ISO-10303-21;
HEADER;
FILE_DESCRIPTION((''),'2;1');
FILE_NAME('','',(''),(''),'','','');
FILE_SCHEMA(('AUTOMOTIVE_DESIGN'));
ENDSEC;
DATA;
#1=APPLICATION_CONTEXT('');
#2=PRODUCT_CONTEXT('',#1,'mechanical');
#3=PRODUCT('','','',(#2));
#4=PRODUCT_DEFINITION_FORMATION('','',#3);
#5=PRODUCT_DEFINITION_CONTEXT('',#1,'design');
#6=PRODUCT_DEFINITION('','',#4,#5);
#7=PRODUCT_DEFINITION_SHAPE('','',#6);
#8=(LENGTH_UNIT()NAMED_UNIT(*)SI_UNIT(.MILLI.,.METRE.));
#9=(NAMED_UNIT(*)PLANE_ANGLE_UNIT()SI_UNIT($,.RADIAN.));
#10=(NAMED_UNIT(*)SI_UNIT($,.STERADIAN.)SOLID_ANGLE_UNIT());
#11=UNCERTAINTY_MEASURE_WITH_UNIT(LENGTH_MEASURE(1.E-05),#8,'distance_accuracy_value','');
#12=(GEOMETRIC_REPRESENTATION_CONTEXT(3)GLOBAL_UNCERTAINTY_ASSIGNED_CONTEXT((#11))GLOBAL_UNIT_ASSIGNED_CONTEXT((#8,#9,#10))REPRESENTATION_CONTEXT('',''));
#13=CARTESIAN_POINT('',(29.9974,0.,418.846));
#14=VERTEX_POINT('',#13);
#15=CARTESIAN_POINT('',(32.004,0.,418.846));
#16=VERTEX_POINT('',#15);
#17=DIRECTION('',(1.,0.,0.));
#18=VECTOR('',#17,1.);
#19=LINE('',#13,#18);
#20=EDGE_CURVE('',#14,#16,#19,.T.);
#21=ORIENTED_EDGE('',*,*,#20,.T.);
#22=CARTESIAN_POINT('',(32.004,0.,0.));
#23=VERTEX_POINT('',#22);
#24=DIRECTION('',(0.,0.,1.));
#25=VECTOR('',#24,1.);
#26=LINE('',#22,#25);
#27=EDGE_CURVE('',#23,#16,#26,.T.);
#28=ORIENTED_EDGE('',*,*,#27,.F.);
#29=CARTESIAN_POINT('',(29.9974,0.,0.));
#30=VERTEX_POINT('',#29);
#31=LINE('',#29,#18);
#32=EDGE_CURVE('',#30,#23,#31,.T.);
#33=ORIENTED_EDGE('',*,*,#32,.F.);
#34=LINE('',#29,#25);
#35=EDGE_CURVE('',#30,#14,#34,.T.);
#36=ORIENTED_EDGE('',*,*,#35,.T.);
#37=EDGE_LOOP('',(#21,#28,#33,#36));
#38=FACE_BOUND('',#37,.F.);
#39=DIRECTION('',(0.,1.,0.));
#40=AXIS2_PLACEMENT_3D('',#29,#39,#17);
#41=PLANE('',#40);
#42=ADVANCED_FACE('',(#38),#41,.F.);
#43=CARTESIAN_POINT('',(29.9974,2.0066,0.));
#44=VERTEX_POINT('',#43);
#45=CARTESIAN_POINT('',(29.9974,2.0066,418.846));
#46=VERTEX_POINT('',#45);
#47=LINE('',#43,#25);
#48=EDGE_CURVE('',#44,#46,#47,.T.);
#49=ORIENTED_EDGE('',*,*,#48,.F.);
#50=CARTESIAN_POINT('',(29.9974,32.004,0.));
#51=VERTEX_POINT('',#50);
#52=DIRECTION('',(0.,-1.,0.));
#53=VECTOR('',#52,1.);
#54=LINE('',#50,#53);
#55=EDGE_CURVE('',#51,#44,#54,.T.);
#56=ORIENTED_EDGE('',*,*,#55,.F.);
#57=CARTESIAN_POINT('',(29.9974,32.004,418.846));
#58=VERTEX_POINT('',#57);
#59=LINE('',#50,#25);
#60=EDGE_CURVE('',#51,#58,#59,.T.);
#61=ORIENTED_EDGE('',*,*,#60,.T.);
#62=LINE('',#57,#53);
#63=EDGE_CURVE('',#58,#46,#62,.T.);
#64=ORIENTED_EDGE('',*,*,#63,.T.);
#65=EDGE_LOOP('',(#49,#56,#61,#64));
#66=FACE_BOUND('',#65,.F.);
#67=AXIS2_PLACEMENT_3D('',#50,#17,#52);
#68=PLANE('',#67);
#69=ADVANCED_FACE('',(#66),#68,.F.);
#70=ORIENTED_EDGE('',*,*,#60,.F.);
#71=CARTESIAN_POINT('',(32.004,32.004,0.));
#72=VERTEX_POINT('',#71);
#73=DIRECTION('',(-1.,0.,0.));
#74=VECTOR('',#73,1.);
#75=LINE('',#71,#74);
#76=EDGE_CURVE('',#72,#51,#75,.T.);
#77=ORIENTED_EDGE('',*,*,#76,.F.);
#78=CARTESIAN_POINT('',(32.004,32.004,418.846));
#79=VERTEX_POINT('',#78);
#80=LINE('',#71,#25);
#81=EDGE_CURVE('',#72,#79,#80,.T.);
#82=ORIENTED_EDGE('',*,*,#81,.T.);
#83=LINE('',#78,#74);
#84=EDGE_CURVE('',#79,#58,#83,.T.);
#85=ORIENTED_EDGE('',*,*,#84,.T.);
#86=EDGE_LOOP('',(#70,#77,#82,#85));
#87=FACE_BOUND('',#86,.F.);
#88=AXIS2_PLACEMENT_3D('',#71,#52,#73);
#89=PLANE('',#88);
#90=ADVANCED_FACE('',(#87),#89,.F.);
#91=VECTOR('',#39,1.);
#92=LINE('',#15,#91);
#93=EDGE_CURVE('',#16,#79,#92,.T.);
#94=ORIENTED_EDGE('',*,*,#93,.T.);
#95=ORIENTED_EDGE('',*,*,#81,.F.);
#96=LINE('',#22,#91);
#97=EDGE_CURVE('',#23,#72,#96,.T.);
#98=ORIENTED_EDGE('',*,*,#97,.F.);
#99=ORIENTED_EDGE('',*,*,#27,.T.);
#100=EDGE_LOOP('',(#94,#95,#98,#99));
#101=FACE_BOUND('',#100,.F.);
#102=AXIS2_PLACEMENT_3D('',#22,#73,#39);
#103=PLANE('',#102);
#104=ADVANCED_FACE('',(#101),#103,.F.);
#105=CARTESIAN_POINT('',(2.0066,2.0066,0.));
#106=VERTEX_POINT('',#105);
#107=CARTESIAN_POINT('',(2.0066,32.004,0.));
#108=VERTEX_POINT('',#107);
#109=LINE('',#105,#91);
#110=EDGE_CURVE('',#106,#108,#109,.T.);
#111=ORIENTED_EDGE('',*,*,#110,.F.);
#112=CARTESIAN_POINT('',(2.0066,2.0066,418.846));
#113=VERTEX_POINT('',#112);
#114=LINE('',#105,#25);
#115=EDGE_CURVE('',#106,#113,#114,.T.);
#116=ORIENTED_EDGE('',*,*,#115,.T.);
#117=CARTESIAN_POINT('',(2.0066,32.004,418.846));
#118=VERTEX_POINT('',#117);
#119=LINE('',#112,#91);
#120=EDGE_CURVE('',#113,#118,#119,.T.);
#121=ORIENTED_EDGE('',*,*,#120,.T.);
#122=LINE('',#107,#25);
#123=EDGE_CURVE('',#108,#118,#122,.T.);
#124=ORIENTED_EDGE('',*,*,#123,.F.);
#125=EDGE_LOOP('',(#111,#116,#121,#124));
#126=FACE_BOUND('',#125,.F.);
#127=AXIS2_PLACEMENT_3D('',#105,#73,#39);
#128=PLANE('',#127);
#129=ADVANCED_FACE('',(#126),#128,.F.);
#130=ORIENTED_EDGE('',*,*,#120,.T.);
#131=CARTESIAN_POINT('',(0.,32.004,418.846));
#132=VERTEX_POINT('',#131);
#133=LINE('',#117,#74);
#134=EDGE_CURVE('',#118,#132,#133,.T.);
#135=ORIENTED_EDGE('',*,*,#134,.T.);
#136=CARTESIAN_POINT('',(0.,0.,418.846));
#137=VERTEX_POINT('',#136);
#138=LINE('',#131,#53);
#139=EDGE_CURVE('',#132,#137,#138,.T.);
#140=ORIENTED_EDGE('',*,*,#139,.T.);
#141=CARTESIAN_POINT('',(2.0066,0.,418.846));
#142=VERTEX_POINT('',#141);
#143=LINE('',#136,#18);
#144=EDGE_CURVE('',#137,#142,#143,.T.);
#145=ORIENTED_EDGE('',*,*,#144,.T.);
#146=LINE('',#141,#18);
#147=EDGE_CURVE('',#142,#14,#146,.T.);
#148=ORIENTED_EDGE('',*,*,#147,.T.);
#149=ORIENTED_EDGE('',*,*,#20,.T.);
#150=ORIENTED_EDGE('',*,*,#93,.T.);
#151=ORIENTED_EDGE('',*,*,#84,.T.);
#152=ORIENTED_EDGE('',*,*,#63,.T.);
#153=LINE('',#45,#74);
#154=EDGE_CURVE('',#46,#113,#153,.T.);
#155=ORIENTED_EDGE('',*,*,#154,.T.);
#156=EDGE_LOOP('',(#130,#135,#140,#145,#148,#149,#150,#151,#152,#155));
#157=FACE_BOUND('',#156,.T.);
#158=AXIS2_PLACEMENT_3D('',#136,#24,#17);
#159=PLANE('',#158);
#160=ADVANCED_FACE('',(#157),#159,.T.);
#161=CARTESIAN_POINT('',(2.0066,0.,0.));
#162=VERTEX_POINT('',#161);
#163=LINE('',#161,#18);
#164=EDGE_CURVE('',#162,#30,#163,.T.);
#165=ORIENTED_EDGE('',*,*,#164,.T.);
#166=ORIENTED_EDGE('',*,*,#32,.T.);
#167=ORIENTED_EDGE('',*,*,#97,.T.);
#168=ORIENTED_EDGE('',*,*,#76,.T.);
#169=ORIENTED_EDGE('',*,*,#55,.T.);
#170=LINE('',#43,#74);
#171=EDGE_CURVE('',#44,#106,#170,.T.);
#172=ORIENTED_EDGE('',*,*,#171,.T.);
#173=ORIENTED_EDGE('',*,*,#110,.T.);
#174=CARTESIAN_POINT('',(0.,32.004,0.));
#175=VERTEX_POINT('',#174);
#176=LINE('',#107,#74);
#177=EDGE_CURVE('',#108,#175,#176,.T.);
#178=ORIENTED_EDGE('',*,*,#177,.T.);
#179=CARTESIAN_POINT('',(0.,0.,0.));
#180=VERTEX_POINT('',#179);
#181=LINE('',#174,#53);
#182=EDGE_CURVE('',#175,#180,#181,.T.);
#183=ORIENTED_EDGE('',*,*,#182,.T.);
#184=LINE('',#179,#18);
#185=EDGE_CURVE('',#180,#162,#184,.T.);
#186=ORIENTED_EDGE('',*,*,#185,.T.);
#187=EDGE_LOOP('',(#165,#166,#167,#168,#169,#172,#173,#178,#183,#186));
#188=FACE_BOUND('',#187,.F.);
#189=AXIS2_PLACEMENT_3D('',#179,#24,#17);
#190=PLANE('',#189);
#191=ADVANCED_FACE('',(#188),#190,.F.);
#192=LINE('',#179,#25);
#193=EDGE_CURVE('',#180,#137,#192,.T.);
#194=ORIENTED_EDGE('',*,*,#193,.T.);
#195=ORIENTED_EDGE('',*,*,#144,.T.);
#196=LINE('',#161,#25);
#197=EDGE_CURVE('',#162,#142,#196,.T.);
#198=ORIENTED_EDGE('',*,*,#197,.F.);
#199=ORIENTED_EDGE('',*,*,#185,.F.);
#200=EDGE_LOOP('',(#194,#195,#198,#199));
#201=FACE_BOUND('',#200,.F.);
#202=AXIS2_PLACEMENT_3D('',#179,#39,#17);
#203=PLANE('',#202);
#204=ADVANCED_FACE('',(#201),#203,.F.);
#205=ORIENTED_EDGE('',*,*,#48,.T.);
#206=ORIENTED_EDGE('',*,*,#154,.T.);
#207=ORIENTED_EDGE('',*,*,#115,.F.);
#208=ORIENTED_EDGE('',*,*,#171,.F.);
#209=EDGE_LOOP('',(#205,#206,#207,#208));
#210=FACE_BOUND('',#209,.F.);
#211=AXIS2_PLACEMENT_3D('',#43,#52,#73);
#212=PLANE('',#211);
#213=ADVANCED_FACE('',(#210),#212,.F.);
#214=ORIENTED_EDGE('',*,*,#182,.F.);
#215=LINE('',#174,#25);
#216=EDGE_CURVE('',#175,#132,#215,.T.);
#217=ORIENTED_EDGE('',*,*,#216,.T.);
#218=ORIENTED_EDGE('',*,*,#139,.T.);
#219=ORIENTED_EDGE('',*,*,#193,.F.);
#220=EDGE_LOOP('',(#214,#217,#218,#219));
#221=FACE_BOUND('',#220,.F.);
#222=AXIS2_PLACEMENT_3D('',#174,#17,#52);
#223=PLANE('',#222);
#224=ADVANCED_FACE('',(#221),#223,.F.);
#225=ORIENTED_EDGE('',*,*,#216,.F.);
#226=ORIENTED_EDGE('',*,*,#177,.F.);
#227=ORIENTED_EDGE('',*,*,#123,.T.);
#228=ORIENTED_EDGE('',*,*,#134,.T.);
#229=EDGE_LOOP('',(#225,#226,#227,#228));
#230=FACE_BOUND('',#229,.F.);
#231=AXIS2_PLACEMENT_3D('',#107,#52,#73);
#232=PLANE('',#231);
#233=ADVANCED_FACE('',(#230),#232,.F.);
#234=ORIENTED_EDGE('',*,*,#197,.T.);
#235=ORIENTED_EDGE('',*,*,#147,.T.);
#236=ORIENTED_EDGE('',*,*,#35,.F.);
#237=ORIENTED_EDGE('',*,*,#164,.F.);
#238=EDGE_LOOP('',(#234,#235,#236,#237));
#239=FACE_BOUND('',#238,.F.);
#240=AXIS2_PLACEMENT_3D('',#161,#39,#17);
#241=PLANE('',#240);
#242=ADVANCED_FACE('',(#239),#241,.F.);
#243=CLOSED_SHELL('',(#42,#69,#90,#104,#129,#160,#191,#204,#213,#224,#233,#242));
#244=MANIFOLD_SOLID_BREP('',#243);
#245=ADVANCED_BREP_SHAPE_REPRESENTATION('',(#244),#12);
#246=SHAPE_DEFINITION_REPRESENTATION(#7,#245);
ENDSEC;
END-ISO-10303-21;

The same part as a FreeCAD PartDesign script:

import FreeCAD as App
import Part
import Sketcher
Q = App.Units.Quantity

doc = App.newDocument("Part")
params = doc.addObject("Spreadsheet::Sheet", "Params")
for row, (alias, value) in enumerate([
    ("sketch1_width", "1.26 in"),
    ("sketch1_width2", "0.079 in"),
    ("pad1_length", "16.49 in"),
], start=1):
    params.set(f"A{row}", alias)
    params.set(f"B{row}", "=" + value)
    params.setAlias(f"B{row}", alias)

body = doc.addObject("PartDesign::Body", "Body")

sketch1 = doc.addObject("Sketcher::SketchObject", "Sketch")
body.addObject(sketch1)
sketch1.AttachmentSupport = (doc.XY_Plane, [""])
sketch1.MapMode = "FlatFace"
sketch1.addGeometry([
    Part.LineSegment(App.Vector(2, 2, 0), App.Vector(2, 32, 0)),
    Part.LineSegment(App.Vector(2, 32, 0), App.Vector(0, 32, 0)),
    Part.LineSegment(App.Vector(0, 32, 0), App.Vector(0, 0, 0)),
    Part.LineSegment(App.Vector(0, 0, 0), App.Vector(32, 0, 0)),
    Part.LineSegment(App.Vector(32, 0, 0), App.Vector(32, 32, 0)),
    Part.LineSegment(App.Vector(32, 32, 0), App.Vector(30, 32, 0)),
    Part.LineSegment(App.Vector(30, 32, 0), App.Vector(30, 2, 0)),
    Part.LineSegment(App.Vector(30, 2, 0), App.Vector(2, 2, 0)),
], False)
sketch1.addConstraint([
    Sketcher.Constraint("Coincident", 0, 2, 1, 1),
    Sketcher.Constraint("Coincident", 1, 2, 2, 1),
    Sketcher.Constraint("Coincident", 2, 2, 3, 1),
    Sketcher.Constraint("Coincident", 3, 2, 4, 1),
    Sketcher.Constraint("Coincident", 4, 2, 5, 1),
    Sketcher.Constraint("Coincident", 5, 2, 6, 1),
    Sketcher.Constraint("Coincident", 6, 2, 7, 1),
    Sketcher.Constraint("Coincident", 7, 2, 0, 1),
    Sketcher.Constraint("Vertical", 0),
    Sketcher.Constraint("Horizontal", 1),
    Sketcher.Constraint("Vertical", 2),
    Sketcher.Constraint("Horizontal", 3),
    Sketcher.Constraint("Vertical", 4),
    Sketcher.Constraint("Horizontal", 5),
    Sketcher.Constraint("Vertical", 6),
    Sketcher.Constraint("Horizontal", 7),
    Sketcher.Constraint("Coincident", 2, 2, -1, 1),
    Sketcher.Constraint("Horizontal", 1, 2, 4, 2),
    Sketcher.Constraint("Equal", 1, 5),
    Sketcher.Constraint("Equal", 3, 2),
    Sketcher.Constraint("DistanceX", 3, 1, 3, 2, Q("1.26 in")),
    Sketcher.Constraint("DistanceX", 1, 2, 1, 1, Q("0.079 in")),
    Sketcher.Constraint("DistanceY", -1, 1, 6, 2, Q("0.079 in")),
])
sketch1.setExpression("Constraints[20]", "Params.sketch1_width")
sketch1.setExpression("Constraints[21]", "Params.sketch1_width2")
pad1 = doc.addObject("PartDesign::Pad", "Pad")
body.addObject(pad1)
pad1.Profile = sketch1
pad1.setExpression("Length", "Params.pad1_length")

doc.recompute()
